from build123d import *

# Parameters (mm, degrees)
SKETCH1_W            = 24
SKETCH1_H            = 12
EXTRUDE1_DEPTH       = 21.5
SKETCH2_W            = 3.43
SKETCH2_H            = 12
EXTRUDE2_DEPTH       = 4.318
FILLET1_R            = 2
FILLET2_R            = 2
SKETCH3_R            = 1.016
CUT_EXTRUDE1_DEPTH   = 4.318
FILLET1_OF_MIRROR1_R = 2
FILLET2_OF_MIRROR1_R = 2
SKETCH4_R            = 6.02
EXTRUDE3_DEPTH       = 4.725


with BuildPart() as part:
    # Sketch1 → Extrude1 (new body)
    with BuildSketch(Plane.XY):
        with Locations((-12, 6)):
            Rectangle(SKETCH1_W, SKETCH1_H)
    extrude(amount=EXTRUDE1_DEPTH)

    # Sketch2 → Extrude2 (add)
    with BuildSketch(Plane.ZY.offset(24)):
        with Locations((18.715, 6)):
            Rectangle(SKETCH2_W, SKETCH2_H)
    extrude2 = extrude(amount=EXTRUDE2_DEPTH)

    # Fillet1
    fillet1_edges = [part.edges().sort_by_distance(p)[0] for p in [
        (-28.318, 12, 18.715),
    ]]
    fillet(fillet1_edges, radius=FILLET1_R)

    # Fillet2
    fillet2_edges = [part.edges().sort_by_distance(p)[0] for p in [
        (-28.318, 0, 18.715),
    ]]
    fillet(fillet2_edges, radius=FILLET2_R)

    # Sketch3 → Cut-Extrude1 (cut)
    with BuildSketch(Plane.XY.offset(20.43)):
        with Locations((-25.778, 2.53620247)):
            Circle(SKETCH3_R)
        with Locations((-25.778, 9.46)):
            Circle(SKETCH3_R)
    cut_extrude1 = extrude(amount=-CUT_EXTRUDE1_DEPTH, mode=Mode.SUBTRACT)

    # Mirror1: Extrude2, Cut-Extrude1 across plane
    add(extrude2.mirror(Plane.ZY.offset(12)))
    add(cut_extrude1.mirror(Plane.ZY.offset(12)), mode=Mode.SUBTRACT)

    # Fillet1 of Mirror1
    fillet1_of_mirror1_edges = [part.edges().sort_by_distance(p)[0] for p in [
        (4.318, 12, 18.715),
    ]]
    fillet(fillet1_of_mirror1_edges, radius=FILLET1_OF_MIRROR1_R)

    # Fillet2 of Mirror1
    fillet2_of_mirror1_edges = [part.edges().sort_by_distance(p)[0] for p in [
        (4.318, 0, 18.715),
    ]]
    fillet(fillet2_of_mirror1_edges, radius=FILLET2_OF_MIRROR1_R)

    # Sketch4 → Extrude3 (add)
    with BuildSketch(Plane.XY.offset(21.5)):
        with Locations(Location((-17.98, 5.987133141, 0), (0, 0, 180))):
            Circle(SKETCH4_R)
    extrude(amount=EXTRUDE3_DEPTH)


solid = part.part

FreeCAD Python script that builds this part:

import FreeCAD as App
import Part
import Sketcher
Q = App.Units.Quantity


def edges_at(feature, points):
    """Names of the edges that pass closest to the given points."""
    edges = feature.Shape.Edges
    near = lambda p: min(range(len(edges)), key=lambda i: edges[i].distToShape(Part.Vertex(*p))[0])
    return sorted({f"Edge{near(p) + 1}" for p in points})

doc = App.newDocument("Part")
body = doc.addObject("PartDesign::Body", "Body")

# Sketch on XY plane
sketch1 = body.newObject("Sketcher::SketchObject", "Sketch")
sketch1.AttachmentSupport = (doc.getObject("XY_Plane"), [""])
sketch1.MapMode = "FlatFace"
sketch1.addGeometry([
    Part.LineSegment(App.Vector(-24, 12, 0), App.Vector(-24, 0, 0)),
    Part.LineSegment(App.Vector(-24, 0, 0), App.Vector(0, 0, 0)),
    Part.LineSegment(App.Vector(0, 0, 0), App.Vector(0, 12, 0)),
    Part.LineSegment(App.Vector(0, 12, 0), App.Vector(-24, 12, 0)),
], False)
sketch1.addConstraint([
    Sketcher.Constraint("Coincident", 0, 2, 1, 1),
    Sketcher.Constraint("Coincident", 1, 2, 2, 1),
    Sketcher.Constraint("Coincident", 2, 2, 3, 1),
    Sketcher.Constraint("Coincident", 3, 2, 0, 1),
    Sketcher.Constraint("Vertical", 0),
    Sketcher.Constraint("Horizontal", 1),
    Sketcher.Constraint("Vertical", 2),
    Sketcher.Constraint("Horizontal", 3),
    Sketcher.Constraint("Coincident", 1, 2, -1, 1),
    Sketcher.Constraint("DistanceX", 1, 1, 1, 2, Q("24 mm")),
    Sketcher.Constraint("DistanceY", 0, 2, 0, 1, Q("12 mm")),
])
pad1 = body.newObject("PartDesign::Pad", "Pad")
pad1.Profile = sketch1
pad1.Length = 21.5

# Sketch on YZ plane
sketch2 = body.newObject("Sketcher::SketchObject", "Sketch001")
sketch2.AttachmentSupport = (doc.getObject("YZ_Plane"), [""])
sketch2.MapMode = "FlatFace"
sketch2.AttachmentOffset = App.Placement(App.Vector(0, 0, -24), App.Rotation())
sketch2.addGeometry([
    Part.LineSegment(App.Vector(12, 17, 0), App.Vector(0, 17, 0)),
    Part.LineSegment(App.Vector(0, 17, 0), App.Vector(0, 20.4, 0)),
    Part.LineSegment(App.Vector(0, 20.4, 0), App.Vector(12, 20.4, 0)),
    Part.LineSegment(App.Vector(12, 20.4, 0), App.Vector(12, 17, 0)),
], False)
sketch2.addConstraint([
    Sketcher.Constraint("Coincident", 0, 2, 1, 1),
    Sketcher.Constraint("Coincident", 1, 2, 2, 1),
    Sketcher.Constraint("Coincident", 2, 2, 3, 1),
    Sketcher.Constraint("Coincident", 3, 2, 0, 1),
    Sketcher.Constraint("Horizontal", 0),
    Sketcher.Constraint("Vertical", 1),
    Sketcher.Constraint("Horizontal", 2),
    Sketcher.Constraint("Vertical", 3),
    Sketcher.Constraint("PointOnObject", 0, 2, -2),
    Sketcher.Constraint("DistanceX", 0, 2, 0, 1, Q("12 mm")),
    Sketcher.Constraint("DistanceY", -1, 1, 0, 2, Q("17 mm")),
    Sketcher.Constraint("DistanceY", 1, 1, 1, 2, Q("3.43 mm")),
])
pad2 = body.newObject("PartDesign::Pad", "Pad001")
pad2.Profile = sketch2
pad2.Length = 4.318
pad2.Reversed = True
doc.recompute()

fillet = body.newObject("PartDesign::Fillet", "Fillet")
fillet.Base = (pad2, edges_at(pad2, [(-28.318, 12, 18.715)]))
fillet.Radius = 2
doc.recompute()

fillet2 = body.newObject("PartDesign::Fillet", "Fillet001")
fillet2.Base = (fillet, edges_at(fillet, [(-28.318, 0, 18.715)]))
fillet2.Radius = 2

# Sketch on XY plane
sketch3 = body.newObject("Sketcher::SketchObject", "Sketch002")
sketch3.AttachmentSupport = (doc.getObject("XY_Plane"), [""])
sketch3.MapMode = "FlatFace"
sketch3.AttachmentOffset = App.Placement(App.Vector(0, 0, 20.43), App.Rotation())
sketch3.addGeometry([
    Part.Circle(App.Vector(-25.8, 2.5, 0), App.Vector(0, 0, 1), 1),
    Part.Circle(App.Vector(-25.8, 9.5, 0), App.Vector(0, 0, 1), 1),
], False)
sketch3.addConstraint([
    Sketcher.Constraint("Equal", 0, 1),
    Sketcher.Constraint("Vertical", 0, 3, 1, 3),
    Sketcher.Constraint("Diameter", 0, Q("2.032 mm")),
    Sketcher.Constraint("DistanceY", -1, 1, 1, 3, Q("9.46 mm")),
    Sketcher.Constraint("DistanceX", 0, 3, -1, 1, Q("25.778 mm")),
    Sketcher.Constraint("DistanceY", -1, 1, 0, 3, Q("2.536202 mm")),
])
pocket1 = body.newObject("PartDesign::Pocket", "Pocket")
pocket1.Profile = sketch3
pocket1.Length = 4.318
doc.recompute()

datumplane = body.newObject("PartDesign::Plane", "DatumPlane")
datumplane.AttachmentSupport = (doc.getObject("YZ_Plane"), [""])
datumplane.MapMode = "FlatFace"
datumplane.AttachmentOffset = App.Placement(App.Vector(0, 0, -12), App.Rotation())
mirrored = body.newObject("PartDesign::Mirrored", "Mirrored")
mirrored.Originals = [pad2, pocket1]
mirrored.MirrorPlane = (datumplane, [""])
body.Tip = mirrored
doc.recompute()

fillet3 = body.newObject("PartDesign::Fillet", "Fillet002")
fillet3.Base = (mirrored, edges_at(mirrored, [(4.318, 12, 18.715)]))
fillet3.Radius = 2
doc.recompute()

fillet4 = body.newObject("PartDesign::Fillet", "Fillet003")
fillet4.Base = (fillet3, edges_at(fillet3, [(4.318, 0, 18.715)]))
fillet4.Radius = 2

# Sketch on XY plane
sketch4 = body.newObject("Sketcher::SketchObject", "Sketch003")
sketch4.AttachmentSupport = (doc.getObject("XY_Plane"), [""])
sketch4.MapMode = "FlatFace"
sketch4.AttachmentOffset = App.Placement(App.Vector(0, 0, 21.5), App.Rotation())
sketch4.addGeometry(Part.Circle(App.Vector(-18, 6, 0), App.Vector(0, 0, 1), 6), False)
sketch4.addConstraint([
    Sketcher.Constraint("Diameter", 0, Q("12.04 mm")),
    Sketcher.Constraint("DistanceX", 0, 3, -1, 1, Q("17.98 mm")),
    Sketcher.Constraint("DistanceY", -1, 1, 0, 3, Q("5.987133 mm")),
])
pad3 = body.newObject("PartDesign::Pad", "Pad002")
pad3.Profile = sketch4
pad3.Length = 4.725

doc.recompute()
